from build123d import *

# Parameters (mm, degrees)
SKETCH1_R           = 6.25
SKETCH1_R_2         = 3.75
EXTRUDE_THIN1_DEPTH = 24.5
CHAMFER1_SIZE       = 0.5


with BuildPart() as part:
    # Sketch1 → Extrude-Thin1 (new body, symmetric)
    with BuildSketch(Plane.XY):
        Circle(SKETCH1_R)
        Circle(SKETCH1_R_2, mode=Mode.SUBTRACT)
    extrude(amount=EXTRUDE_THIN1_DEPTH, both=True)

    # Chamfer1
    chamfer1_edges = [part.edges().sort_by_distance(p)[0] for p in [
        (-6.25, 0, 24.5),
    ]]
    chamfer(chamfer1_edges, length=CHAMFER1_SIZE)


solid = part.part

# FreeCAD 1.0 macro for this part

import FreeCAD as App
import Part
import Sketcher

V = App.Vector
Q = App.Units.Quantity


def edges_at(feature, points):
    """Names of the edges that pass closest to the given points."""
    edges = feature.Shape.Edges
    near = lambda p: min(range(len(edges)), key=lambda i: edges[i].distToShape(Part.Vertex(*p))[0])
    return sorted({f"Edge{near(p) + 1}" for p in points})

doc = App.newDocument("Part")
body = doc.addObject("PartDesign::Body", "Body")

# Sketch on XY plane
sketch1 = body.newObject("Sketcher::SketchObject", "Sketch")
sketch1.AttachmentSupport = (doc.getObject("XY_Plane"), [""])
sketch1.MapMode = "FlatFace"
sketch1.addGeometry([
    Part.Circle(V(0, 0, 0), V(0, 0, 1), 6.25),
    Part.Circle(V(0, 0, 0), V(0, 0, 1), 3.75),
], False)
sketch1.addConstraint([
    Sketcher.Constraint("Coincident", 0, 3, -1, 1),
    Sketcher.Constraint("Coincident", 1, 3, -1, 1),
    Sketcher.Constraint("Diameter", 0, Q("12.5 mm")),
    Sketcher.Constraint("Diameter", 1, Q("7.5 mm")),
])
pad1 = body.newObject("PartDesign::Pad", "Pad")
pad1.Profile = sketch1
pad1.Length = 49
pad1.Midplane = True
doc.recompute()

chamfer = body.newObject("PartDesign::Chamfer", "Chamfer")
chamfer.Base = (pad1, edges_at(pad1, [(-6.25, 0, 24.5)]))
chamfer.Size = 0.5

doc.recompute()
